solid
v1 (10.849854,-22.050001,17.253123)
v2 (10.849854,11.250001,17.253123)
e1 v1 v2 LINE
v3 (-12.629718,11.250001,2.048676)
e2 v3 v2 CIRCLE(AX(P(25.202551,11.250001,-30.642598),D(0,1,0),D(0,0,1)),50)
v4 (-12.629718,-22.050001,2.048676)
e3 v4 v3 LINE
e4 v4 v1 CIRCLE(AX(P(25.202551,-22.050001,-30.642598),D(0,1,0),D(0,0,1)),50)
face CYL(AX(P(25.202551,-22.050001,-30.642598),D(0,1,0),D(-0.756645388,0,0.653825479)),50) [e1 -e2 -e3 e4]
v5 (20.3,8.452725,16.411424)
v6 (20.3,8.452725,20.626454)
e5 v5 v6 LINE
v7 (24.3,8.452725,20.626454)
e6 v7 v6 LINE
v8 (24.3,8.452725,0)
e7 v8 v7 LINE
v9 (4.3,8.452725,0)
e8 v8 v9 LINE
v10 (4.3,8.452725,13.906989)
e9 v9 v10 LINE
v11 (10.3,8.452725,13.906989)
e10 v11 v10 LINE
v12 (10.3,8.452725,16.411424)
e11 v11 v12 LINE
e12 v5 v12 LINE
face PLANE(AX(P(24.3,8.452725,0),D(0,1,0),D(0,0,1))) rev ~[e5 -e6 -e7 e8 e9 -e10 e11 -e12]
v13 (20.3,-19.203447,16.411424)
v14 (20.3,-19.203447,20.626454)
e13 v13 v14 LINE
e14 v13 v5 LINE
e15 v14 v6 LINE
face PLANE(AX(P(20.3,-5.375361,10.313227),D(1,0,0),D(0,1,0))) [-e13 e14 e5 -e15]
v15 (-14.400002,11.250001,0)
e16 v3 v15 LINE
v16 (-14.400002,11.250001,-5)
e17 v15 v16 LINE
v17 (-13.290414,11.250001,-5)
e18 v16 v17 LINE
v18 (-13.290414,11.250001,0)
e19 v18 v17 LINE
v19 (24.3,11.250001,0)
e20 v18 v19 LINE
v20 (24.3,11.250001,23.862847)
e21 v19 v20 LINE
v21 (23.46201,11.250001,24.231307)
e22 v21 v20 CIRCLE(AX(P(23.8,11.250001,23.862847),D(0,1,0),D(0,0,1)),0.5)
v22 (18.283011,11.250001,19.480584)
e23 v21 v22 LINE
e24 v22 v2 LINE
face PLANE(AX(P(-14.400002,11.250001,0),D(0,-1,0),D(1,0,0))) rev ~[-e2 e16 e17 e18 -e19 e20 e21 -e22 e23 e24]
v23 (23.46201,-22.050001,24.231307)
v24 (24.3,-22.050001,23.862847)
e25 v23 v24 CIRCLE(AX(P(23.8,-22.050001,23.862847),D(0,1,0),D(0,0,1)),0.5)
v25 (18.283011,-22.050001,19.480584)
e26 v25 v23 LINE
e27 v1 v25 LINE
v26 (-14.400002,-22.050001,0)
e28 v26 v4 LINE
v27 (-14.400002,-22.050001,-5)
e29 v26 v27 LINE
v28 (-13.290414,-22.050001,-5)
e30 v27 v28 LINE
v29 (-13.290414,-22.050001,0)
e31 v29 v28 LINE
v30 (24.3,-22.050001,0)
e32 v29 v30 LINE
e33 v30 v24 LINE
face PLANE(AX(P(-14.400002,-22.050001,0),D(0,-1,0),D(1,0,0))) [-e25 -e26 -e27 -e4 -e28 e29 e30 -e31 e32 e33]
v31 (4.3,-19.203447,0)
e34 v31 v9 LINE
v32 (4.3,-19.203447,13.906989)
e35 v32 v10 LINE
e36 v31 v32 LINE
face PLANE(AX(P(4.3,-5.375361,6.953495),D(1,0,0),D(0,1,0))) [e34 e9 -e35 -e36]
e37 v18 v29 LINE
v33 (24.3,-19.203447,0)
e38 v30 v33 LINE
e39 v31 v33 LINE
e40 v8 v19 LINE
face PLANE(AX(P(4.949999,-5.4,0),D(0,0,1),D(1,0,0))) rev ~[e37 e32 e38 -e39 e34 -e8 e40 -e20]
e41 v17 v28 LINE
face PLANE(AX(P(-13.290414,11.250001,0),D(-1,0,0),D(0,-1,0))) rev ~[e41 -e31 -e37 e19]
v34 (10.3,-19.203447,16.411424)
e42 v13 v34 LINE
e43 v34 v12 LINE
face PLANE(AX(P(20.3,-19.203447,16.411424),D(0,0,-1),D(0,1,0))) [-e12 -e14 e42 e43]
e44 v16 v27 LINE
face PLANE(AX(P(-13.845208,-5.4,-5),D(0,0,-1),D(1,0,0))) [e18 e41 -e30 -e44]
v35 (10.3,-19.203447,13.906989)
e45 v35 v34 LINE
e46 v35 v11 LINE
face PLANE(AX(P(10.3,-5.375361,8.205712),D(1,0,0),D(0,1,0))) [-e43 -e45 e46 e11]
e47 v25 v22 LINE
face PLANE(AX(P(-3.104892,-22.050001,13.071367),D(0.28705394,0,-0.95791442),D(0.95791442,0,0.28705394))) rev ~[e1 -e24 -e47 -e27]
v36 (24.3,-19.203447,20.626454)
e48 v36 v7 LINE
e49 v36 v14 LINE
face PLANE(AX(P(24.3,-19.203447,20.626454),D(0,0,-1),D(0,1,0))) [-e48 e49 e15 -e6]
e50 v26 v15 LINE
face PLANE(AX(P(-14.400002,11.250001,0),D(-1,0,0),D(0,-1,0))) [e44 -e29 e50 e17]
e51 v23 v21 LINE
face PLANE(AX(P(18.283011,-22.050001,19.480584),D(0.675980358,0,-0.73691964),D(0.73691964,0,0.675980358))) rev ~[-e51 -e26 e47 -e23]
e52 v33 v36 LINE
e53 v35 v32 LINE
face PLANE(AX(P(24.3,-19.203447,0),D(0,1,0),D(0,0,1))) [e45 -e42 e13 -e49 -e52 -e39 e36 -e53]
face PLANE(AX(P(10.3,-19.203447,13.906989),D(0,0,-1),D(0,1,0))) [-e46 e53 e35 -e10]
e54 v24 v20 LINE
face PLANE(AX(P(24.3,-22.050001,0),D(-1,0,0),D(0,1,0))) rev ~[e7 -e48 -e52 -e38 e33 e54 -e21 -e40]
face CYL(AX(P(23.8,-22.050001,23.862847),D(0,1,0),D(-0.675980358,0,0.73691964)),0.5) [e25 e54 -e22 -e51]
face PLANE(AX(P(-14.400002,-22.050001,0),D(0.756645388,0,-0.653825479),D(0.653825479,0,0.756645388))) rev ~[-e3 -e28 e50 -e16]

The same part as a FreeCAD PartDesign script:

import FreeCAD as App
import Part
import Sketcher
Q = App.Units.Quantity


def edges_at(feature, points):
    """Names of the edges that pass closest to the given points."""
    edges = feature.Shape.Edges
    near = lambda p: min(range(len(edges)), key=lambda i: edges[i].distToShape(Part.Vertex(*p))[0])
    return sorted({f"Edge{near(p) + 1}" for p in points})


def add_polygon(sketch, points):
    """Adds a closed chain of lines whose ends are joined by coincident constraints."""
    first, n = sketch.GeometryCount, len(points)
    for a, b in zip(points, points[1:] + points[:1]):
        sketch.addGeometry(Part.LineSegment(App.Vector(*a, 0), App.Vector(*b, 0)), False)
    for i in range(n):
        sketch.addConstraint(Sketcher.Constraint("Coincident", first + i, 2, first + (i + 1) % n, 1))

doc = App.newDocument("Part")
params = doc.addObject("Spreadsheet::Sheet", "Params")
for row, (alias, value) in enumerate([
    ("sketch1_width", "38.700001 mm"),
    ("pad1_length", "25 mm"),
    ("sketch2_height", "25 mm"),
    ("sketch2_width", "38.700001 mm"),
    ("fillet_radius", "50 mm"),
    ("fillet2_radius", "0.5 mm"),
    ("pocket2_length", "4 mm"),
    ("pocket3_length", "10 mm"),
    ("pocket4_length", "6 mm"),
    ("pad2_length", "5 mm"),
], start=1):
    params.set(f"A{row}", alias)
    params.set(f"B{row}", "=" + value)
    params.setAlias(f"B{row}", alias)

body = doc.addObject("PartDesign::Body", "Body")

# Sketch on XY plane
sketch1 = doc.addObject("Sketcher::SketchObject", "Sketch")
body.addObject(sketch1)
sketch1.AttachmentSupport = (doc.XY_Plane, [""])
sketch1.MapMode = "FlatFace"
add_polygon(sketch1, [(-14.400002, 11.250001), (-14.400002, -22.050001), (24.3, -22.050001), (24.3, 11.250001)])  # lines 0-3
sketch1.addConstraint(Sketcher.Constraint("Vertical", 0))
sketch1.addConstraint(Sketcher.Constraint("Horizontal", 1))
sketch1.addConstraint(Sketcher.Constraint("Vertical", 2))
sketch1.addConstraint(Sketcher.Constraint("Horizontal", 3))
sketch1.addConstraint(Sketcher.Constraint("DistanceX", 1, 1, 1, 2, Q("38.700001 mm")))
sketch1.addConstraint(Sketcher.Constraint("DistanceX", 0, 2, -1, 1, Q("14.400002 mm")))
sketch1.addConstraint(Sketcher.Constraint("DistanceY", 0, 2, -1, 1, Q("22.050001 mm")))
sketch1.addConstraint(Sketcher.Constraint("DistanceY", -1, 1, 2, 2, Q("11.250001 mm")))
sketch1.setExpression("Constraints[8]", "Params.sketch1_width")
pad1 = doc.addObject("PartDesign::Pad", "Pad")
body.addObject(pad1)
pad1.Profile = sketch1
pad1.setExpression("Length", "Params.pad1_length")

# Sketch on XZ plane
sketch2 = doc.addObject("Sketcher::SketchObject", "Sketch001")
body.addObject(sketch2)
sketch2.AttachmentSupport = (doc.XZ_Plane, [""])
sketch2.MapMode = "FlatFace"
sketch2.AttachmentOffset = App.Placement(App.Vector(0, 0, 22.050001), App.Rotation())
add_polygon(sketch2, [(-14.400002, 25), (-14.400002, 0), (-3.104892, 13.071367), (18.283011, 19.480584), (24.3, 25)])  # lines 0-4
sketch2.addConstraint(Sketcher.Constraint("Vertical", 0))
sketch2.addConstraint(Sketcher.Constraint("Horizontal", 4))
sketch2.addConstraint(Sketcher.Constraint("PointOnObject", 0, 2, -1))
sketch2.addConstraint(Sketcher.Constraint("DistanceY", 0, 2, 0, 1, Q("25 mm")))
sketch2.addConstraint(Sketcher.Constraint("DistanceX", 4, 2, 4, 1, Q("38.700001 mm")))
sketch2.addConstraint(Sketcher.Constraint("DistanceX", 0, 2, -1, 1, Q("14.400002 mm")))
sketch2.addConstraint(Sketcher.Constraint("Distance", 1, Q("17.27542 mm")))
sketch2.addConstraint(Sketcher.Constraint("DistanceX", -1, 1, 2, 2, Q("18.283011 mm")))
sketch2.addConstraint(Sketcher.Constraint("DistanceX", 0, 2, 1, 2, Q("11.29511 mm")))
sketch2.addConstraint(Sketcher.Constraint("Distance", 2, Q("22.327572 mm")))
sketch2.setExpression("Constraints[8]", "Params.sketch2_height")
sketch2.setExpression("Constraints[9]", "Params.sketch2_width")
pocket1 = doc.addObject("PartDesign::Pocket", "Pocket")
body.addObject(pocket1)
pocket1.Profile = sketch2
pocket1.Type = "ThroughAll"
doc.recompute()

fillet = doc.addObject("PartDesign::Fillet", "Fillet")
body.addObject(fillet)
fillet.Base = (pocket1, edges_at(pocket1, [(-3.105, -5.4, 13.071)]))
fillet.setExpression("Radius", "Params.fillet_radius")
doc.recompute()

fillet2 = doc.addObject("PartDesign::Fillet", "Fillet001")
body.addObject(fillet2)
fillet2.Base = (fillet, edges_at(fillet, [(24.3, -5.4, 25)]))
fillet2.setExpression("Radius", "Params.fillet2_radius")

# Sketch on YZ plane
sketch3 = doc.addObject("Sketcher::SketchObject", "Sketch002")
body.addObject(sketch3)
sketch3.AttachmentSupport = (doc.YZ_Plane, [""])
sketch3.MapMode = "FlatFace"
sketch3.AttachmentOffset = App.Placement(App.Vector(0, 0, 24.3), App.Rotation())
add_polygon(sketch3, [(-19.203447, 20.626454), (-19.203447, 0), (8.452725, 0), (8.452725, 20.626454)])  # lines 0-3
sketch3.addConstraint(Sketcher.Constraint("Vertical", 0))
sketch3.addConstraint(Sketcher.Constraint("Horizontal", 1))
sketch3.addConstraint(Sketcher.Constraint("Vertical", 2))
sketch3.addConstraint(Sketcher.Constraint("Horizontal", 3))
sketch3.addConstraint(Sketcher.Constraint("PointOnObject", 0, 2, -1))
sketch3.addConstraint(Sketcher.Constraint("DistanceX", 1, 1, 1, 2, Q("27.656171 mm")))
sketch3.addConstraint(Sketcher.Constraint("DistanceY", 0, 2, 0, 1, Q("20.626454 mm")))
sketch3.addConstraint(Sketcher.Constraint("DistanceX", 0, 2, -1, 1, Q("19.203447 mm")))
pocket2 = doc.addObject("PartDesign::Pocket", "Pocket001")
body.addObject(pocket2)
pocket2.Profile = sketch3
pocket2.setExpression("Length", "Params.pocket2_length")

# Sketch on YZ plane
sketch4 = doc.addObject("Sketcher::SketchObject", "Sketch003")
body.addObject(sketch4)
sketch4.AttachmentSupport = (doc.YZ_Plane, [""])
sketch4.MapMode = "FlatFace"
sketch4.AttachmentOffset = App.Placement(App.Vector(0, 0, 20.3), App.Rotation())
add_polygon(sketch4, [(-19.203447, 16.411424), (-19.203447, 0), (8.452725, 0), (8.452725, 16.411424)])  # lines 0-3
sketch4.addConstraint(Sketcher.Constraint("Vertical", 0))
sketch4.addConstraint(Sketcher.Constraint("Horizontal", 1))
sketch4.addConstraint(Sketcher.Constraint("Vertical", 2))
sketch4.addConstraint(Sketcher.Constraint("Horizontal", 3))
sketch4.addConstraint(Sketcher.Constraint("PointOnObject", 0, 2, -1))
sketch4.addConstraint(Sketcher.Constraint("DistanceX", 1, 1, 1, 2, Q("27.656171 mm")))
sketch4.addConstraint(Sketcher.Constraint("DistanceY", 0, 2, 0, 1, Q("16.411424 mm")))
sketch4.addConstraint(Sketcher.Constraint("DistanceX", 0, 2, -1, 1, Q("19.203447 mm")))
pocket3 = doc.addObject("PartDesign::Pocket", "Pocket002")
body.addObject(pocket3)
pocket3.Profile = sketch4
pocket3.setExpression("Length", "Params.pocket3_length")

# Sketch on YZ plane
sketch5 = doc.addObject("Sketcher::SketchObject", "Sketch004")
body.addObject(sketch5)
sketch5.AttachmentSupport = (doc.YZ_Plane, [""])
sketch5.MapMode = "FlatFace"
sketch5.AttachmentOffset = App.Placement(App.Vector(0, 0, 10.3), App.Rotation())
add_polygon(sketch5, [(-19.203447, 13.906989), (-19.203447, 0), (8.452725, 0), (8.452725, 13.906989)])  # lines 0-3
sketch5.addConstraint(Sketcher.Constraint("Vertical", 0))
sketch5.addConstraint(Sketcher.Constraint("Horizontal", 1))
sketch5.addConstraint(Sketcher.Constraint("Vertical", 2))
sketch5.addConstraint(Sketcher.Constraint("Horizontal", 3))
sketch5.addConstraint(Sketcher.Constraint("PointOnObject", 0, 2, -1))
sketch5.addConstraint(Sketcher.Constraint("DistanceX", 1, 1, 1, 2, Q("27.656171 mm")))
sketch5.addConstraint(Sketcher.Constraint("DistanceY", 0, 2, 0, 1, Q("13.906989 mm")))
sketch5.addConstraint(Sketcher.Constraint("DistanceX", 0, 2, -1, 1, Q("19.203447 mm")))
pocket4 = doc.addObject("PartDesign::Pocket", "Pocket003")
body.addObject(pocket4)
pocket4.Profile = sketch5
pocket4.setExpression("Length", "Params.pocket4_length")

# Sketch on XY plane
sketch6 = doc.addObject("Sketcher::SketchObject", "Sketch005")
body.addObject(sketch6)
sketch6.AttachmentSupport = (doc.XY_Plane, [""])
sketch6.MapMode = "FlatFace"
add_polygon(sketch6, [(-14.400002, -22.050001), (-14.400002, 11.250001), (-13.290414, 11.250001), (-13.290414, -22.050001)])  # lines 0-3
sketch6.addConstraint(Sketcher.Constraint("Vertical", 0))
sketch6.addConstraint(Sketcher.Constraint("Horizontal", 1))
sketch6.addConstraint(Sketcher.Constraint("Vertical", 2))
sketch6.addConstraint(Sketcher.Constraint("Horizontal", 3))
sketch6.addConstraint(Sketcher.Constraint("DistanceX", 0, 2, -1, 1, Q("14.400002 mm")))
sketch6.addConstraint(Sketcher.Constraint("DistanceY", -1, 1, 0, 2, Q("11.250001 mm")))
sketch6.addConstraint(Sketcher.Constraint("DistanceY", 2, 2, -1, 1, Q("22.050001 mm")))
sketch6.addConstraint(Sketcher.Constraint("DistanceX", 1, 1, 1, 2, Q("1.109588 mm")))
pad2 = doc.addObject("PartDesign::Pad", "Pad001")
body.addObject(pad2)
pad2.Profile = sketch6
pad2.setExpression("Length", "Params.pad2_length")
pad2.Reversed = True

doc.recompute()
